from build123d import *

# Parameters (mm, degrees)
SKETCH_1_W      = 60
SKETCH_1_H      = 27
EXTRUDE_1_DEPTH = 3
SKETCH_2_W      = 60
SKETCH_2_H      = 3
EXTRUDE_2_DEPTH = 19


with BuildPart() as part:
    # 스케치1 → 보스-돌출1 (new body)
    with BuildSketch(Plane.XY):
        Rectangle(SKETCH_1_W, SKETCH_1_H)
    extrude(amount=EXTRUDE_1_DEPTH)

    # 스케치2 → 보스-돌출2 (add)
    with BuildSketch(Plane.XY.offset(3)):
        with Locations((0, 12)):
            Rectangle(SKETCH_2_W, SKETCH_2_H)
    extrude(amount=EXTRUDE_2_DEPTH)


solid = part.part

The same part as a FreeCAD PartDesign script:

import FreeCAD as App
import Part
import Sketcher

doc = App.newDocument("Part")
body = doc.addObject("PartDesign::Body", "Body")

# Sketch on XY plane
sketch1 = doc.addObject("Sketcher::SketchObject", "Sketch")
body.addObject(sketch1)
sketch1.AttachmentSupport = (doc.XY_Plane, [""])
sketch1.MapMode = "FlatFace"
sketch1.addGeometry(Part.LineSegment(App.Vector(-30, 14, 0), App.Vector(-30, -14, 0)), False)
sketch1.addGeometry(Part.LineSegment(App.Vector(-30, -14, 0), App.Vector(30, -14, 0)), False)
sketch1.addGeometry(Part.LineSegment(App.Vector(30, -14, 0), App.Vector(30, 14, 0)), False)
sketch1.addGeometry(Part.LineSegment(App.Vector(30, 14, 0), App.Vector(-30, 14, 0)), False)
sketch1.addConstraint(Sketcher.Constraint("Coincident", 0, 2, 1, 1))
sketch1.addConstraint(Sketcher.Constraint("Coincident", 1, 2, 2, 1))
sketch1.addConstraint(Sketcher.Constraint("Coincident", 2, 2, 3, 1))
sketch1.addConstraint(Sketcher.Constraint("Coincident", 3, 2, 0, 1))
sketch1.addConstraint(Sketcher.Constraint("Vertical", 0))
sketch1.addConstraint(Sketcher.Constraint("Horizontal", 1))
sketch1.addConstraint(Sketcher.Constraint("Vertical", 2))
sketch1.addConstraint(Sketcher.Constraint("Horizontal", 3))
sketch1.addConstraint(Sketcher.Constraint("Symmetric", 0, 2, 2, 2, -1, 1))
sketch1.addConstraint(Sketcher.Constraint("DistanceX", 1, 1, 1, 2, 60.0))
sketch1.addConstraint(Sketcher.Constraint("DistanceY", 0, 2, 0, 1, 27.0))
pad1 = doc.addObject("PartDesign::Pad", "Pad")
body.addObject(pad1)
pad1.Profile = sketch1
pad1.Length = 3

# Sketch on XY plane
sketch2 = doc.addObject("Sketcher::SketchObject", "Sketch001")
body.addObject(sketch2)
sketch2.AttachmentSupport = (doc.XY_Plane, [""])
sketch2.MapMode = "FlatFace"
sketch2.AttachmentOffset = App.Placement(App.Vector(0, 0, 3), App.Rotation())
sketch2.addGeometry(Part.LineSegment(App.Vector(-30, 13.5, 0), App.Vector(-30, 10.5, 0)), False)
sketch2.addGeometry(Part.LineSegment(App.Vector(-30, 10.5, 0), App.Vector(30, 10.5, 0)), False)
sketch2.addGeometry(Part.LineSegment(App.Vector(30, 10.5, 0), App.Vector(30, 13.5, 0)), False)
sketch2.addGeometry(Part.LineSegment(App.Vector(30, 13.5, 0), App.Vector(-30, 13.5, 0)), False)
sketch2.addConstraint(Sketcher.Constraint("Coincident", 0, 2, 1, 1))
sketch2.addConstraint(Sketcher.Constraint("Coincident", 1, 2, 2, 1))
sketch2.addConstraint(Sketcher.Constraint("Coincident", 2, 2, 3, 1))
sketch2.addConstraint(Sketcher.Constraint("Coincident", 3, 2, 0, 1))
sketch2.addConstraint(Sketcher.Constraint("Vertical", 0))
sketch2.addConstraint(Sketcher.Constraint("Horizontal", 1))
sketch2.addConstraint(Sketcher.Constraint("Vertical", 2))
sketch2.addConstraint(Sketcher.Constraint("Horizontal", 3))
sketch2.addConstraint(Sketcher.Constraint("DistanceX", 1, 1, 1, 2, 60.0))
sketch2.addConstraint(Sketcher.Constraint("DistanceY", 0, 2, 0, 1, 3.0))
sketch2.addConstraint(Sketcher.Constraint("DistanceX", 0, 2, -1, 1, 30.0))
sketch2.addConstraint(Sketcher.Constraint("DistanceY", -1, 1, 0, 2, 10.5))
pad2 = doc.addObject("PartDesign::Pad", "Pad001")
body.addObject(pad2)
pad2.Profile = sketch2
pad2.Length = 19

doc.recompute()
